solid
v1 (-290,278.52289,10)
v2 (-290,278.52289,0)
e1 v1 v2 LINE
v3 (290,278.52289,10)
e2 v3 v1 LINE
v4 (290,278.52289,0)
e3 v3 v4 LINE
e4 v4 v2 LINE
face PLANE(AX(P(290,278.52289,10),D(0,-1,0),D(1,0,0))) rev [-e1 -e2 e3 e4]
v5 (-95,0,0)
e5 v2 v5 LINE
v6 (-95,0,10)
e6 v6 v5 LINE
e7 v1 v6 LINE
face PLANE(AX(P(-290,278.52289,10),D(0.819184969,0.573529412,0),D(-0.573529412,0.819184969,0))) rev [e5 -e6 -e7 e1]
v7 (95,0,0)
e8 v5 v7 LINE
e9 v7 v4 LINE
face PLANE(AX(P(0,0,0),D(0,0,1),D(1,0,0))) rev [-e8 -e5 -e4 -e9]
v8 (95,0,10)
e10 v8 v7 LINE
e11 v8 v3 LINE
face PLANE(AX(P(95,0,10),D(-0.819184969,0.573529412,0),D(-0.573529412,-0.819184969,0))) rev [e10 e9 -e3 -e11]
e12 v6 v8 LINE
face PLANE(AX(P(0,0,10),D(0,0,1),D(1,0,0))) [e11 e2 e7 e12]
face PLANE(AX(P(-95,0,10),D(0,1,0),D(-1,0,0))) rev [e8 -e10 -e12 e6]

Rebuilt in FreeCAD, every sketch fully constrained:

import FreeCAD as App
import Part
import Sketcher

V = App.Vector
Q = App.Units.Quantity

doc = App.newDocument("Part")
params = doc.addObject("Spreadsheet::Sheet", "Params")
for row, (alias, value) in enumerate([
    ("sketch1_width", "190 mm"),
    ("sketch1_width2", "580 mm"),
    ("sketch1_length", "340 mm"),
    ("pad1_length", "10 mm"),
], start=1):
    params.set(f"A{row}", alias)
    params.set(f"B{row}", "=" + value)
    params.setAlias(f"B{row}", alias)

body = doc.addObject("PartDesign::Body", "Body")

# Sketch on XY plane
sketch1 = body.newObject("Sketcher::SketchObject", "Sketch")
sketch1.AttachmentSupport = (doc.getObject("XY_Plane"), [""])
sketch1.MapMode = "FlatFace"
sketch1.addGeometry(Part.LineSegment(V(-95, 0, 0), V(95, 0, 0)), False)
sketch1.addGeometry(Part.LineSegment(V(95, 0, 0), V(290, 279, 0)), False)
sketch1.addGeometry(Part.LineSegment(V(290, 279, 0), V(-290, 279, 0)), False)
sketch1.addGeometry(Part.LineSegment(V(-290, 279, 0), V(-95, 0, 0)), False)
sketch1.addConstraint(Sketcher.Constraint("Coincident", 0, 2, 1, 1))
sketch1.addConstraint(Sketcher.Constraint("Coincident", 1, 2, 2, 1))
sketch1.addConstraint(Sketcher.Constraint("Coincident", 2, 2, 3, 1))
sketch1.addConstraint(Sketcher.Constraint("Coincident", 3, 2, 0, 1))
sketch1.addConstraint(Sketcher.Constraint("Horizontal", 0))
sketch1.addConstraint(Sketcher.Constraint("Horizontal", 2))
sketch1.addConstraint(Sketcher.Constraint("Symmetric", 0, 2, 3, 2, -1, 1))
sketch1.addConstraint(Sketcher.Constraint("Equal", 1, 3))
sketch1.addConstraint(Sketcher.Constraint("DistanceX", 0, 1, 0, 2, Q("190 mm")))
sketch1.addConstraint(Sketcher.Constraint("DistanceX", 2, 2, 2, 1, Q("580 mm")))
sketch1.addConstraint(Sketcher.Constraint("Distance", 1, Q("340 mm")))
sketch1.setExpression("Constraints[8]", "Params.sketch1_width")
sketch1.setExpression("Constraints[9]", "Params.sketch1_width2")
sketch1.setExpression("Constraints[10]", "Params.sketch1_length")
pad1 = body.newObject("PartDesign::Pad", "Pad")
pad1.Profile = sketch1
pad1.setExpression("Length", "Params.pad1_length")

doc.recompute()
